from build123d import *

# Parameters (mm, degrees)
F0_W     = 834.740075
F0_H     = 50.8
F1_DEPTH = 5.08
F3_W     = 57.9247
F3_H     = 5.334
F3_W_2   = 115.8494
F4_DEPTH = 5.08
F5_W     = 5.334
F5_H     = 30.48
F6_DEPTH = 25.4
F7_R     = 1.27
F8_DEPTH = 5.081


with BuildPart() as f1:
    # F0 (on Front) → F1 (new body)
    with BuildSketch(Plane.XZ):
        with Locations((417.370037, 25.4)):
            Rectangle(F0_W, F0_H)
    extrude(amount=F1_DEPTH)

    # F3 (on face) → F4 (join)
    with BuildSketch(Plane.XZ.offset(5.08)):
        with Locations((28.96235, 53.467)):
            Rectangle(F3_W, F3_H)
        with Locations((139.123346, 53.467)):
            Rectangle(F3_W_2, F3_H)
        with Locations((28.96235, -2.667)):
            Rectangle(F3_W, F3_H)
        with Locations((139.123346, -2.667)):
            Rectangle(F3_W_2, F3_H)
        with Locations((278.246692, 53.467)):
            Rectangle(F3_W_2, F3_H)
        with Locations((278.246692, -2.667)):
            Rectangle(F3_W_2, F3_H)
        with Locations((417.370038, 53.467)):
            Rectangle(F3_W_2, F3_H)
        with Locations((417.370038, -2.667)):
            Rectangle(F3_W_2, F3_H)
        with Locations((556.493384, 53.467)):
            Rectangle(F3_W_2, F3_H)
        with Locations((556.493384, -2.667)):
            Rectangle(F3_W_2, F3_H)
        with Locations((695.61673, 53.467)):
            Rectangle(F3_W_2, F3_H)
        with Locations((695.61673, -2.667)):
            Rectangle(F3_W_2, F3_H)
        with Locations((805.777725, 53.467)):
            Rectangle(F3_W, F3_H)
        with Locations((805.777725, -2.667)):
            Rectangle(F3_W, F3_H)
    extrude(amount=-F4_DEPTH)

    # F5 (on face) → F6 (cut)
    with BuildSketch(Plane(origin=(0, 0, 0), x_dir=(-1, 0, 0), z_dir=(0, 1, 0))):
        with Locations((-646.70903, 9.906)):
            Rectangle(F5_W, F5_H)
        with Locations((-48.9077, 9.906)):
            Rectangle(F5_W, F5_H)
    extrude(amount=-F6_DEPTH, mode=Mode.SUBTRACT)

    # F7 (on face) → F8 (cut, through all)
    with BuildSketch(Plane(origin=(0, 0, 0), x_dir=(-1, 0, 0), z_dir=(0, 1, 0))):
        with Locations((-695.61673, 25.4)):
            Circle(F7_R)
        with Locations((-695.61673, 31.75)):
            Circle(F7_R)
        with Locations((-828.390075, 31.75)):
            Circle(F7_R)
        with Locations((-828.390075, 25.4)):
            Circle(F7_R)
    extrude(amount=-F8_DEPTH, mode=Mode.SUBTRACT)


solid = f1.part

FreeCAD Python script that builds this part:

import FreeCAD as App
import Part
import Sketcher
from FreeCAD import Vector
Q = App.Units.Quantity


def add_polygon(sketch, points):
    """Adds a closed chain of lines whose ends are joined by coincident constraints."""
    first, n = sketch.GeometryCount, len(points)
    for a, b in zip(points, points[1:] + points[:1]):
        sketch.addGeometry(Part.LineSegment(App.Vector(*a, 0), App.Vector(*b, 0)), False)
    for i in range(n):
        sketch.addConstraint(Sketcher.Constraint("Coincident", first + i, 2, first + (i + 1) % n, 1))

doc = App.newDocument("Part")
params = doc.addObject("Spreadsheet::Sheet", "Params")
for row, (alias, value) in enumerate([
    ("sketch1_height", "2 in"),
    ("pad1_length", "0.2 in"),
    ("sketch2_height", "0.21 in"),
    ("sketch2_width", "4.561 in"),
    ("pad2_length", "0.2 in"),
    ("sketch3_height", "1.2 in"),
    ("sketch3_width", "0.21 in"),
    ("pocket1_length", "1 in"),
    ("sketch4_diameter", "0.1 in"),
], start=1):
    params.set(f"A{row}", alias)
    params.set(f"B{row}", "=" + value)
    params.setAlias(f"B{row}", alias)

body = doc.addObject("PartDesign::Body", "Body")

# Sketch on XZ plane
sketch1 = doc.addObject("Sketcher::SketchObject", "Sketch")
body.addObject(sketch1)
sketch1.AttachmentSupport = (doc.XZ_Plane, [""])
sketch1.MapMode = "FlatFace"
add_polygon(sketch1, [(0, 51), (0, 0), (835, 0), (835, 51)])  # lines 0-3
sketch1.addConstraint([
    Sketcher.Constraint("Vertical", 0),
    Sketcher.Constraint("Horizontal", 1),
    Sketcher.Constraint("Vertical", 2),
    Sketcher.Constraint("Horizontal", 3),
    Sketcher.Constraint("Coincident", 0, 2, -1, 1),
    Sketcher.Constraint("DistanceY", 0, 2, 0, 1, Q("2 in")),
    Sketcher.Constraint("DistanceX", 1, 1, 1, 2, 834.740075),
])
sketch1.setExpression("Constraints[9]", "Params.sketch1_height")
pad1 = doc.addObject("PartDesign::Pad", "Pad")
body.addObject(pad1)
pad1.Profile = sketch1
pad1.setExpression("Length", "Params.pad1_length")

# Sketch on XZ plane
sketch2 = doc.addObject("Sketcher::SketchObject", "Sketch001")
body.addObject(sketch2)
sketch2.AttachmentSupport = (doc.XZ_Plane, [""])
sketch2.MapMode = "FlatFace"
sketch2.AttachmentOffset = App.Placement(Vector(0, 0, 0.2 * 25.4), App.Rotation())
add_polygon(sketch2, [(0, 56), (0, 51), (58, 51), (58, 56)])  # lines 0-3
add_polygon(sketch2, [(81, 56), (81, 51), (197, 51), (197, 56)])  # lines 4-7
add_polygon(sketch2, [(0, 0), (0, -5), (58, -5), (58, 0)])  # lines 8-11
add_polygon(sketch2, [(81, 0), (81, -5), (197, -5), (197, 0)])  # lines 12-15
add_polygon(sketch2, [(220, 56), (220, 51), (336, 51), (336, 56)])  # lines 16-19
add_polygon(sketch2, [(220, 0), (220, -5), (336, -5), (336, 0)])  # lines 20-23
add_polygon(sketch2, [(359, 56), (359, 51), (475, 51), (475, 56)])  # lines 24-27
add_polygon(sketch2, [(359, 0), (359, -5), (475, -5), (475, 0)])  # lines 28-31
add_polygon(sketch2, [(499, 56), (499, 51), (614, 51), (614, 56)])  # lines 32-35
add_polygon(sketch2, [(499, 0), (499, -5), (614, -5), (614, 0)])  # lines 36-39
add_polygon(sketch2, [(638, 56), (638, 51), (754, 51), (754, 56)])  # lines 40-43
add_polygon(sketch2, [(638, 0), (638, -5), (754, -5), (754, 0)])  # lines 44-47
add_polygon(sketch2, [(777, 56), (777, 51), (835, 51), (835, 56)])  # lines 48-51
add_polygon(sketch2, [(777, 0), (777, -5), (835, -5), (835, 0)])  # lines 52-55
sketch2.addConstraint([
    Sketcher.Constraint("Vertical", 0),
    Sketcher.Constraint("Horizontal", 1),
    Sketcher.Constraint("Vertical", 2),
    Sketcher.Constraint("Horizontal", 3),
    Sketcher.Constraint("Vertical", 4),
    Sketcher.Constraint("Horizontal", 5),
    Sketcher.Constraint("Vertical", 6),
    Sketcher.Constraint("Horizontal", 7),
    Sketcher.Constraint("Vertical", 8),
    Sketcher.Constraint("Horizontal", 9),
    Sketcher.Constraint("Vertical", 10),
    Sketcher.Constraint("Horizontal", 11),
    Sketcher.Constraint("Vertical", 12),
    Sketcher.Constraint("Horizontal", 13),
    Sketcher.Constraint("Vertical", 14),
    Sketcher.Constraint("Horizontal", 15),
    Sketcher.Constraint("Vertical", 16),
    Sketcher.Constraint("Horizontal", 17),
    Sketcher.Constraint("Vertical", 18),
    Sketcher.Constraint("Horizontal", 19),
    Sketcher.Constraint("Vertical", 20),
    Sketcher.Constraint("Horizontal", 21),
    Sketcher.Constraint("Vertical", 22),
    Sketcher.Constraint("Horizontal", 23),
    Sketcher.Constraint("Vertical", 24),
    Sketcher.Constraint("Horizontal", 25),
    Sketcher.Constraint("Vertical", 26),
    Sketcher.Constraint("Horizontal", 27),
    Sketcher.Constraint("Vertical", 28),
    Sketcher.Constraint("Horizontal", 29),
    Sketcher.Constraint("Vertical", 30),
    Sketcher.Constraint("Horizontal", 31),
    Sketcher.Constraint("Vertical", 32),
    Sketcher.Constraint("Horizontal", 33),
    Sketcher.Constraint("Vertical", 34),
    Sketcher.Constraint("Horizontal", 35),
    Sketcher.Constraint("Vertical", 36),
    Sketcher.Constraint("Horizontal", 37),
    Sketcher.Constraint("Vertical", 38),
    Sketcher.Constraint("Horizontal", 39),
    Sketcher.Constraint("Vertical", 40),
    Sketcher.Constraint("Horizontal", 41),
    Sketcher.Constraint("Vertical", 42),
    Sketcher.Constraint("Horizontal", 43),
    Sketcher.Constraint("Vertical", 44),
    Sketcher.Constraint("Horizontal", 45),
    Sketcher.Constraint("Vertical", 46),
    Sketcher.Constraint("Horizontal", 47),
    Sketcher.Constraint("Vertical", 48),
    Sketcher.Constraint("Horizontal", 49),
    Sketcher.Constraint("Vertical", 50),
    Sketcher.Constraint("Horizontal", 51),
    Sketcher.Constraint("Vertical", 52),
    Sketcher.Constraint("Horizontal", 53),
    Sketcher.Constraint("Vertical", 54),
    Sketcher.Constraint("Horizontal", 55),
    Sketcher.Constraint("Coincident", 11, 2, -1, 1),
    Sketcher.Constraint("PointOnObject", 0, 2, -2),
    Sketcher.Constraint("PointOnObject", 14, 2, -1),
    Sketcher.Constraint("PointOnObject", 22, 2, -1),
    Sketcher.Constraint("PointOnObject", 30, 2, -1),
    Sketcher.Constraint("PointOnObject", 38, 2, -1),
    Sketcher.Constraint("PointOnObject", 46, 2, -1),
    Sketcher.Constraint("PointOnObject", 54, 2, -1),
    Sketcher.Constraint("Horizontal", 1, 2, 4, 2),
    Sketcher.Constraint("Horizontal", 3, 2, 6, 2),
    Sketcher.Constraint("Horizontal", 9, 2, 12, 2),
    Sketcher.Constraint("Horizontal", 5, 2, 16, 2),
    Sketcher.Constraint("Horizontal", 7, 2, 18, 2),
    Sketcher.Constraint("Horizontal", 13, 2, 20, 2),
    Sketcher.Constraint("Horizontal", 17, 2, 24, 2),
    Sketcher.Constraint("Horizontal", 19, 2, 26, 2),
    Sketcher.Constraint("Horizontal", 21, 2, 28, 2),
    Sketcher.Constraint("Horizontal", 25, 2, 32, 2),
    Sketcher.Constraint("Horizontal", 27, 2, 34, 2),
    Sketcher.Constraint("Horizontal", 29, 2, 36, 2),
    Sketcher.Constraint("Horizontal", 33, 2, 40, 2),
    Sketcher.Constraint("Horizontal", 35, 2, 42, 2),
    Sketcher.Constraint("Horizontal", 37, 2, 44, 2),
    Sketcher.Constraint("Horizontal", 41, 2, 48, 2),
    Sketcher.Constraint("Horizontal", 43, 2, 50, 2),
    Sketcher.Constraint("Horizontal", 45, 2, 52, 2),
    Sketcher.Constraint("Vertical", 2, 2, 9, 2),
    Sketcher.Constraint("Vertical", 7, 2, 12, 2),
    Sketcher.Constraint("Vertical", 6, 2, 13, 2),
    Sketcher.Constraint("Vertical", 19, 2, 20, 2),
    Sketcher.Constraint("Vertical", 18, 2, 21, 2),
    Sketcher.Constraint("Vertical", 27, 2, 28, 2),
    Sketcher.Constraint("Vertical", 26, 2, 29, 2),
    Sketcher.Constraint("Vertical", 35, 2, 36, 2),
    Sketcher.Constraint("Vertical", 34, 2, 37, 2),
    Sketcher.Constraint("Vertical", 43, 2, 44, 2),
    Sketcher.Constraint("Vertical", 42, 2, 45, 2),
    Sketcher.Constraint("Vertical", 51, 2, 52, 2),
    Sketcher.Constraint("Vertical", 50, 2, 53, 2),
    Sketcher.Constraint("Equal", 15, 17),
    Sketcher.Constraint("Equal", 23, 25),
    Sketcher.Constraint("Equal", 31, 33),
    Sketcher.Constraint("Equal", 39, 41),
    Sketcher.Constraint("Equal", 11, 49),
    Sketcher.Constraint("Equal", 6, 8),
    Sketcher.Constraint("DistanceY", -1, 1, 0, 2, Q("2 in")),
    Sketcher.Constraint("DistanceY", 0, 2, 0, 1, Q("0.21 in")),
    Sketcher.Constraint("DistanceX", 5, 1, 5, 2, Q("4.561 in")),
    Sketcher.Constraint("DistanceX", 1, 1, 1, 2, Q("2.2805 in")),
    Sketcher.Constraint("DistanceX", -1, 1, 16, 2, 220.321992),
    Sketcher.Constraint("DistanceX", -1, 1, 24, 2, 359.445338),
    Sketcher.Constraint("DistanceX", -1, 1, 40, 2, 637.69203),
    Sketcher.Constraint("DistanceX", -1, 1, 4, 2, 81.198646),
    Sketcher.Constraint("DistanceX", -1, 1, 32, 2, 498.568684),
    Sketcher.Constraint("DistanceX", -1, 1, 48, 2, 776.815375),
])
sketch2.setExpression("Constraints[158]", "Params.sketch2_height")
sketch2.setExpression("Constraints[159]", "Params.sketch2_width")
pad2 = doc.addObject("PartDesign::Pad", "Pad001")
body.addObject(pad2)
pad2.Profile = sketch2
pad2.setExpression("Length", "Params.pad2_length")
pad2.Reversed = True

# Sketch on XZ plane
sketch3 = doc.addObject("Sketcher::SketchObject", "Sketch002")
body.addObject(sketch3)
sketch3.AttachmentSupport = (doc.XZ_Plane, [""])
sketch3.MapMode = "FlatFace"
add_polygon(sketch3, [(649, 25), (649, -5), (644, -5), (644, 25)])  # lines 0-3
add_polygon(sketch3, [(52, 25), (52, -5), (46, -5), (46, 25)])  # lines 4-7
sketch3.addConstraint([
    Sketcher.Constraint("Vertical", 0),
    Sketcher.Constraint("Horizontal", 1),
    Sketcher.Constraint("Vertical", 2),
    Sketcher.Constraint("Horizontal", 3),
    Sketcher.Constraint("Vertical", 4),
    Sketcher.Constraint("Horizontal", 5),
    Sketcher.Constraint("Vertical", 6),
    Sketcher.Constraint("Horizontal", 7),
    Sketcher.Constraint("Horizontal", 1, 2, 4, 2),
    Sketcher.Constraint("Horizontal", 3, 2, 6, 2),
    Sketcher.Constraint("Equal", 3, 5),
    Sketcher.Constraint("DistanceY", 0, 2, 0, 1, Q("1.2 in")),
    Sketcher.Constraint("DistanceX", 1, 2, 1, 1, Q("0.21 in")),
    Sketcher.Constraint("DistanceY", 0, 2, -1, 1, Q("0.21 in")),
    Sketcher.Constraint("DistanceX", -1, 1, 4, 2, Q("2.0305 in")),
    Sketcher.Constraint("DistanceX", -1, 1, 0, 2, 649.37603),
])
sketch3.setExpression("Constraints[19]", "Params.sketch3_height")
sketch3.setExpression("Constraints[20]", "Params.sketch3_width")
pocket1 = doc.addObject("PartDesign::Pocket", "Pocket")
body.addObject(pocket1)
pocket1.Profile = sketch3
pocket1.setExpression("Length", "Params.pocket1_length")
pocket1.Reversed = True

# Sketch on XZ plane
sketch4 = doc.addObject("Sketcher::SketchObject", "Sketch003")
body.addObject(sketch4)
sketch4.AttachmentSupport = (doc.XZ_Plane, [""])
sketch4.MapMode = "FlatFace"
sketch4.addGeometry([
    Part.Circle(Vector(695.6, 25.4, 0), Vector(0, 0, 1), 1.3),
    Part.Circle(Vector(695.6, 31.8, 0), Vector(0, 0, 1), 1.3),
    Part.Circle(Vector(828.4, 31.8, 0), Vector(0, 0, 1), 1.3),
    Part.Circle(Vector(828.4, 25.4, 0), Vector(0, 0, 1), 1.3),
], False)
sketch4.addConstraint([
    Sketcher.Constraint("Equal", 0, 1),
    Sketcher.Constraint("Equal", 1, 2),
    Sketcher.Constraint("Equal", 2, 3),
    Sketcher.Constraint("Horizontal", 1, 3, 2, 3),
    Sketcher.Constraint("Horizontal", 0, 3, 3, 3),
    Sketcher.Constraint("Vertical", 0, 3, 1, 3),
    Sketcher.Constraint("Vertical", 2, 3, 3, 3),
    Sketcher.Constraint("Diameter", 0, Q("0.1 in")),
    Sketcher.Constraint("DistanceY", -1, 1, 0, 3, Q("1 in")),
    Sketcher.Constraint("DistanceY", -1, 1, 1, 3, Q("1.25 in")),
    Sketcher.Constraint("DistanceX", -1, 1, 0, 3, 695.61673),
    Sketcher.Constraint("DistanceX", -1, 1, 2, 3, 828.390075),
])
sketch4.setExpression("Constraints[7]", "Params.sketch4_diameter")
pocket2 = doc.addObject("PartDesign::Pocket", "Pocket001")
body.addObject(pocket2)
pocket2.Profile = sketch4
pocket2.Type = "ThroughAll"
pocket2.Reversed = True

doc.recompute()
